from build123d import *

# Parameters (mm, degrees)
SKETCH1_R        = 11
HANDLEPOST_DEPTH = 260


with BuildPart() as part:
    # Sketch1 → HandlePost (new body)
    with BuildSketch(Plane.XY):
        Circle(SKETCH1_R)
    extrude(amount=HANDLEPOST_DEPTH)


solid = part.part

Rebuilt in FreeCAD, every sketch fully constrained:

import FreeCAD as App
import Part
import Sketcher

V = App.Vector

doc = App.newDocument("Part")
body = doc.addObject("PartDesign::Body", "Body")

sketch1 = body.newObject("Sketcher::SketchObject", "Sketch")
sketch1.AttachmentSupport = (doc.getObject("XY_Plane"), [""])
sketch1.MapMode = "FlatFace"
sketch1.addGeometry(Part.Circle(V(0, 0, 0), V(0, 0, 1), 11), False)
sketch1.addConstraint([
    Sketcher.Constraint("Coincident", 0, 3, -1, 1),
    Sketcher.Constraint("Diameter", 0, 22.0),
])
pad1 = body.newObject("PartDesign::Pad", "Pad")
pad1.Profile = sketch1
pad1.Length = 260

doc.recompute()
